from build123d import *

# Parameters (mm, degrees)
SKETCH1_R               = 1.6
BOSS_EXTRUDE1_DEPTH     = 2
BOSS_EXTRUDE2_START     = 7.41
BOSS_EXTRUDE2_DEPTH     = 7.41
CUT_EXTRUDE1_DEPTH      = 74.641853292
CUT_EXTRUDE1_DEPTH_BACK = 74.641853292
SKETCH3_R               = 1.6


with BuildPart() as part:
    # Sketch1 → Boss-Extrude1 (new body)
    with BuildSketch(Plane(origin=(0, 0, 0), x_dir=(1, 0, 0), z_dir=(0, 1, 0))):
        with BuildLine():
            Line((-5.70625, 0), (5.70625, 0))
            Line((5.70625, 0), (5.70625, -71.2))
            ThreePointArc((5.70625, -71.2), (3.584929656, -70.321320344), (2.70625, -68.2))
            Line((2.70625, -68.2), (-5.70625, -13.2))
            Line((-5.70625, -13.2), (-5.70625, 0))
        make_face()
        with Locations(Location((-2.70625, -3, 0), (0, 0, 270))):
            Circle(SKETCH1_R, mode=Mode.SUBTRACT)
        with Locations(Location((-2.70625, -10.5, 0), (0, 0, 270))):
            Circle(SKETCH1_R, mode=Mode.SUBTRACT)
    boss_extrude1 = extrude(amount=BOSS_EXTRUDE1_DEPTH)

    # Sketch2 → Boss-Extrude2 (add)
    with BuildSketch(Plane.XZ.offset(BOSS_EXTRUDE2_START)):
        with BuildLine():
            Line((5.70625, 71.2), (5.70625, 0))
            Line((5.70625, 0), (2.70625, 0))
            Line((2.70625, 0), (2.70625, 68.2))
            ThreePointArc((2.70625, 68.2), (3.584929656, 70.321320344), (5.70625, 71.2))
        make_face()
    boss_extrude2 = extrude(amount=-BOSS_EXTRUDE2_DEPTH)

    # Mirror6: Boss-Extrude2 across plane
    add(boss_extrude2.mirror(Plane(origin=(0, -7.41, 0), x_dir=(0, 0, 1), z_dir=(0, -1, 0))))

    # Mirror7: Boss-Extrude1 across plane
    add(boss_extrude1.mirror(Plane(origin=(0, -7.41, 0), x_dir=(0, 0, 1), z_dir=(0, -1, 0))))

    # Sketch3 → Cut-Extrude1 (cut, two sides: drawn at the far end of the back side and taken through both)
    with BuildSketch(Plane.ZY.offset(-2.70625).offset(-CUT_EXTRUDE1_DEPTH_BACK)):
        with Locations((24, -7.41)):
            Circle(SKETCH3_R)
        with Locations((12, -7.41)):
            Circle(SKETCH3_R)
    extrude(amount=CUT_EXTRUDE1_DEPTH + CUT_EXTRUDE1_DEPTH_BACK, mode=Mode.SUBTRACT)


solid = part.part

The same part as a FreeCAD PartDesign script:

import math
import FreeCAD as App
import Part
import Sketcher
from FreeCAD import Vector
Q = App.Units.Quantity

doc = App.newDocument("Part")
body = doc.addObject("PartDesign::Body", "Body")

# Sketch on XZ plane
sketch1 = body.newObject("Sketcher::SketchObject", "Sketch")
sketch1.AttachmentSupport = (doc.getObject("XZ_Plane"), [""])
sketch1.MapMode = "FlatFace"
sketch1.addGeometry([
    Part.LineSegment(Vector(5.7, 0, 0), Vector(-5.7, 0, 0)),  # 0
    Part.LineSegment(Vector(-5.7, 0, 0), Vector(-5.7, 13.2, 0)),  # 1
    Part.LineSegment(Vector(-5.7, 13.2, 0), Vector(2.7, 68.2, 0)),  # 2
    Part.ArcOfCircle(Part.Circle(Vector(5.7, 68.2, 0), Vector(0, 0, 1), 3), math.radians(90), math.radians(180)),  # 3
    Part.LineSegment(Vector(5.7, 71.2, 0), Vector(5.7, 0, 0)),  # 4
    Part.Circle(Vector(-2.7, 10.5, 0), Vector(0, 0, 1), 1.6),  # 5
    Part.Circle(Vector(-2.7, 3, 0), Vector(0, 0, 1), 1.6),  # 6
], False)
sketch1.addConstraint([
    Sketcher.Constraint("Coincident", 0, 2, 1, 1),
    Sketcher.Constraint("Coincident", 1, 2, 2, 1),
    Sketcher.Constraint("Coincident", 2, 2, 3, 2),
    Sketcher.Constraint("Coincident", 3, 1, 4, 1),
    Sketcher.Constraint("Coincident", 4, 2, 0, 1),
    Sketcher.Constraint("Horizontal", 0),
    Sketcher.Constraint("Vertical", 1),
    Sketcher.Constraint("Vertical", 4),
    Sketcher.Constraint("Equal", 5, 6),
    Sketcher.Constraint("Symmetric", 0, 2, 4, 2, -1, 1),
    Sketcher.Constraint("Horizontal", 3, 3, 2, 2),
    Sketcher.Constraint("Vertical", 5, 3, 6, 3),
    Sketcher.Constraint("Radius", 3, Q("3 mm")),
    Sketcher.Constraint("Diameter", 5, Q("3.2 mm")),
    Sketcher.Constraint("DistanceY", 1, 1, 1, 2, Q("13.2 mm")),
    Sketcher.Constraint("DistanceY", 4, 2, 4, 1, Q("71.2 mm")),
    Sketcher.Constraint("DistanceY", -1, 1, 6, 3, Q("3 mm")),
    Sketcher.Constraint("DistanceX", 0, 2, 6, 3, Q("3 mm")),
    Sketcher.Constraint("DistanceX", 2, 2, 3, 1, Q("3 mm")),
    Sketcher.Constraint("DistanceY", -1, 1, 5, 3, Q("10.5 mm")),
    Sketcher.Constraint("DistanceX", 0, 2, 0, 1, Q("11.4125 mm")),
])
pad1 = body.newObject("PartDesign::Pad", "Pad")
pad1.Profile = sketch1
pad1.Length = 2
pad1.Reversed = True

# Sketch on XZ plane
sketch2 = body.newObject("Sketcher::SketchObject", "Sketch001")
sketch2.AttachmentSupport = (doc.getObject("XZ_Plane"), [""])
sketch2.MapMode = "FlatFace"
sketch2.AttachmentOffset = App.Placement(Vector(0, 0, 7.41), App.Rotation())
sketch2.addGeometry([
    Part.LineSegment(Vector(5.7, 0, 0), Vector(5.7, 71.2, 0)),
    Part.ArcOfCircle(Part.Circle(Vector(5.7, 68.2, 0), Vector(0, 0, 1), 3), math.radians(90), math.radians(180)),
    Part.LineSegment(Vector(2.7, 68.2, 0), Vector(2.7, 0, 0)),
    Part.LineSegment(Vector(2.7, 0, 0), Vector(5.7, 0, 0)),
], False)
sketch2.addConstraint([
    Sketcher.Constraint("Coincident", 0, 2, 1, 1),
    Sketcher.Constraint("Tangent", 1, 2, 2, 1),
    Sketcher.Constraint("Coincident", 2, 2, 3, 1),
    Sketcher.Constraint("Coincident", 3, 2, 0, 1),
    Sketcher.Constraint("Vertical", 0),
    Sketcher.Constraint("Vertical", 2),
    Sketcher.Constraint("Horizontal", 3),
    Sketcher.Constraint("PointOnObject", 2, 2, -1),
    Sketcher.Constraint("Vertical", 1, 3, 0, 2),
    Sketcher.Constraint("Radius", 1, Q("3 mm")),
    Sketcher.Constraint("DistanceY", 0, 1, 0, 2, Q("71.2 mm")),
    Sketcher.Constraint("DistanceX", -1, 1, 1, 3, Q("5.70625 mm")),
])
pad2 = body.newObject("PartDesign::Pad", "Pad001")
pad2.Profile = sketch2
pad2.Length = 7.41
pad2.Reversed = True
doc.recompute()

datumplane = body.newObject("PartDesign::Plane", "DatumPlane")
datumplane.AttachmentSupport = (doc.getObject("XZ_Plane"), [""])
datumplane.MapMode = "FlatFace"
datumplane.AttachmentOffset = App.Placement(Vector(0, 0, 7.41), App.Rotation())
mirrored = body.newObject("PartDesign::Mirrored", "Mirrored")
mirrored.Originals = [pad2]
mirrored.MirrorPlane = (datumplane, [""])
body.Tip = mirrored
doc.recompute()

datumplane2 = body.newObject("PartDesign::Plane", "DatumPlane001")
datumplane2.AttachmentSupport = (doc.getObject("XZ_Plane"), [""])
datumplane2.MapMode = "FlatFace"
datumplane2.AttachmentOffset = App.Placement(Vector(0, 0, 7.41), App.Rotation())
mirrored2 = body.newObject("PartDesign::Mirrored", "Mirrored001")
mirrored2.Originals = [pad1]
mirrored2.MirrorPlane = (datumplane2, [""])
body.Tip = mirrored2

# Sketch on YZ plane
sketch3 = body.newObject("Sketcher::SketchObject", "Sketch002")
sketch3.AttachmentSupport = (doc.getObject("YZ_Plane"), [""])
sketch3.MapMode = "FlatFace"
sketch3.AttachmentOffset = App.Placement(Vector(0, 0, 2.70625), App.Rotation())
sketch3.addGeometry([
    Part.Circle(Vector(-7.4, 24, 0), Vector(0, 0, 1), 1.6),
    Part.Circle(Vector(-7.4, 12, 0), Vector(0, 0, 1), 1.6),
], False)
sketch3.addConstraint([
    Sketcher.Constraint("Equal", 0, 1),
    Sketcher.Constraint("Vertical", 0, 3, 1, 3),
    Sketcher.Constraint("Diameter", 0, Q("3.2 mm")),
    Sketcher.Constraint("DistanceY", -1, 1, 0, 3, Q("24 mm")),
    Sketcher.Constraint("DistanceY", -1, 1, 1, 3, Q("12 mm")),
    Sketcher.Constraint("DistanceX", 0, 3, -1, 1, Q("7.41 mm")),
])
pocket1 = body.newObject("PartDesign::Pocket", "Pocket")
pocket1.Profile = sketch3
pocket1.Type = "ThroughAll"
pocket1.Midplane = True

doc.recompute()
